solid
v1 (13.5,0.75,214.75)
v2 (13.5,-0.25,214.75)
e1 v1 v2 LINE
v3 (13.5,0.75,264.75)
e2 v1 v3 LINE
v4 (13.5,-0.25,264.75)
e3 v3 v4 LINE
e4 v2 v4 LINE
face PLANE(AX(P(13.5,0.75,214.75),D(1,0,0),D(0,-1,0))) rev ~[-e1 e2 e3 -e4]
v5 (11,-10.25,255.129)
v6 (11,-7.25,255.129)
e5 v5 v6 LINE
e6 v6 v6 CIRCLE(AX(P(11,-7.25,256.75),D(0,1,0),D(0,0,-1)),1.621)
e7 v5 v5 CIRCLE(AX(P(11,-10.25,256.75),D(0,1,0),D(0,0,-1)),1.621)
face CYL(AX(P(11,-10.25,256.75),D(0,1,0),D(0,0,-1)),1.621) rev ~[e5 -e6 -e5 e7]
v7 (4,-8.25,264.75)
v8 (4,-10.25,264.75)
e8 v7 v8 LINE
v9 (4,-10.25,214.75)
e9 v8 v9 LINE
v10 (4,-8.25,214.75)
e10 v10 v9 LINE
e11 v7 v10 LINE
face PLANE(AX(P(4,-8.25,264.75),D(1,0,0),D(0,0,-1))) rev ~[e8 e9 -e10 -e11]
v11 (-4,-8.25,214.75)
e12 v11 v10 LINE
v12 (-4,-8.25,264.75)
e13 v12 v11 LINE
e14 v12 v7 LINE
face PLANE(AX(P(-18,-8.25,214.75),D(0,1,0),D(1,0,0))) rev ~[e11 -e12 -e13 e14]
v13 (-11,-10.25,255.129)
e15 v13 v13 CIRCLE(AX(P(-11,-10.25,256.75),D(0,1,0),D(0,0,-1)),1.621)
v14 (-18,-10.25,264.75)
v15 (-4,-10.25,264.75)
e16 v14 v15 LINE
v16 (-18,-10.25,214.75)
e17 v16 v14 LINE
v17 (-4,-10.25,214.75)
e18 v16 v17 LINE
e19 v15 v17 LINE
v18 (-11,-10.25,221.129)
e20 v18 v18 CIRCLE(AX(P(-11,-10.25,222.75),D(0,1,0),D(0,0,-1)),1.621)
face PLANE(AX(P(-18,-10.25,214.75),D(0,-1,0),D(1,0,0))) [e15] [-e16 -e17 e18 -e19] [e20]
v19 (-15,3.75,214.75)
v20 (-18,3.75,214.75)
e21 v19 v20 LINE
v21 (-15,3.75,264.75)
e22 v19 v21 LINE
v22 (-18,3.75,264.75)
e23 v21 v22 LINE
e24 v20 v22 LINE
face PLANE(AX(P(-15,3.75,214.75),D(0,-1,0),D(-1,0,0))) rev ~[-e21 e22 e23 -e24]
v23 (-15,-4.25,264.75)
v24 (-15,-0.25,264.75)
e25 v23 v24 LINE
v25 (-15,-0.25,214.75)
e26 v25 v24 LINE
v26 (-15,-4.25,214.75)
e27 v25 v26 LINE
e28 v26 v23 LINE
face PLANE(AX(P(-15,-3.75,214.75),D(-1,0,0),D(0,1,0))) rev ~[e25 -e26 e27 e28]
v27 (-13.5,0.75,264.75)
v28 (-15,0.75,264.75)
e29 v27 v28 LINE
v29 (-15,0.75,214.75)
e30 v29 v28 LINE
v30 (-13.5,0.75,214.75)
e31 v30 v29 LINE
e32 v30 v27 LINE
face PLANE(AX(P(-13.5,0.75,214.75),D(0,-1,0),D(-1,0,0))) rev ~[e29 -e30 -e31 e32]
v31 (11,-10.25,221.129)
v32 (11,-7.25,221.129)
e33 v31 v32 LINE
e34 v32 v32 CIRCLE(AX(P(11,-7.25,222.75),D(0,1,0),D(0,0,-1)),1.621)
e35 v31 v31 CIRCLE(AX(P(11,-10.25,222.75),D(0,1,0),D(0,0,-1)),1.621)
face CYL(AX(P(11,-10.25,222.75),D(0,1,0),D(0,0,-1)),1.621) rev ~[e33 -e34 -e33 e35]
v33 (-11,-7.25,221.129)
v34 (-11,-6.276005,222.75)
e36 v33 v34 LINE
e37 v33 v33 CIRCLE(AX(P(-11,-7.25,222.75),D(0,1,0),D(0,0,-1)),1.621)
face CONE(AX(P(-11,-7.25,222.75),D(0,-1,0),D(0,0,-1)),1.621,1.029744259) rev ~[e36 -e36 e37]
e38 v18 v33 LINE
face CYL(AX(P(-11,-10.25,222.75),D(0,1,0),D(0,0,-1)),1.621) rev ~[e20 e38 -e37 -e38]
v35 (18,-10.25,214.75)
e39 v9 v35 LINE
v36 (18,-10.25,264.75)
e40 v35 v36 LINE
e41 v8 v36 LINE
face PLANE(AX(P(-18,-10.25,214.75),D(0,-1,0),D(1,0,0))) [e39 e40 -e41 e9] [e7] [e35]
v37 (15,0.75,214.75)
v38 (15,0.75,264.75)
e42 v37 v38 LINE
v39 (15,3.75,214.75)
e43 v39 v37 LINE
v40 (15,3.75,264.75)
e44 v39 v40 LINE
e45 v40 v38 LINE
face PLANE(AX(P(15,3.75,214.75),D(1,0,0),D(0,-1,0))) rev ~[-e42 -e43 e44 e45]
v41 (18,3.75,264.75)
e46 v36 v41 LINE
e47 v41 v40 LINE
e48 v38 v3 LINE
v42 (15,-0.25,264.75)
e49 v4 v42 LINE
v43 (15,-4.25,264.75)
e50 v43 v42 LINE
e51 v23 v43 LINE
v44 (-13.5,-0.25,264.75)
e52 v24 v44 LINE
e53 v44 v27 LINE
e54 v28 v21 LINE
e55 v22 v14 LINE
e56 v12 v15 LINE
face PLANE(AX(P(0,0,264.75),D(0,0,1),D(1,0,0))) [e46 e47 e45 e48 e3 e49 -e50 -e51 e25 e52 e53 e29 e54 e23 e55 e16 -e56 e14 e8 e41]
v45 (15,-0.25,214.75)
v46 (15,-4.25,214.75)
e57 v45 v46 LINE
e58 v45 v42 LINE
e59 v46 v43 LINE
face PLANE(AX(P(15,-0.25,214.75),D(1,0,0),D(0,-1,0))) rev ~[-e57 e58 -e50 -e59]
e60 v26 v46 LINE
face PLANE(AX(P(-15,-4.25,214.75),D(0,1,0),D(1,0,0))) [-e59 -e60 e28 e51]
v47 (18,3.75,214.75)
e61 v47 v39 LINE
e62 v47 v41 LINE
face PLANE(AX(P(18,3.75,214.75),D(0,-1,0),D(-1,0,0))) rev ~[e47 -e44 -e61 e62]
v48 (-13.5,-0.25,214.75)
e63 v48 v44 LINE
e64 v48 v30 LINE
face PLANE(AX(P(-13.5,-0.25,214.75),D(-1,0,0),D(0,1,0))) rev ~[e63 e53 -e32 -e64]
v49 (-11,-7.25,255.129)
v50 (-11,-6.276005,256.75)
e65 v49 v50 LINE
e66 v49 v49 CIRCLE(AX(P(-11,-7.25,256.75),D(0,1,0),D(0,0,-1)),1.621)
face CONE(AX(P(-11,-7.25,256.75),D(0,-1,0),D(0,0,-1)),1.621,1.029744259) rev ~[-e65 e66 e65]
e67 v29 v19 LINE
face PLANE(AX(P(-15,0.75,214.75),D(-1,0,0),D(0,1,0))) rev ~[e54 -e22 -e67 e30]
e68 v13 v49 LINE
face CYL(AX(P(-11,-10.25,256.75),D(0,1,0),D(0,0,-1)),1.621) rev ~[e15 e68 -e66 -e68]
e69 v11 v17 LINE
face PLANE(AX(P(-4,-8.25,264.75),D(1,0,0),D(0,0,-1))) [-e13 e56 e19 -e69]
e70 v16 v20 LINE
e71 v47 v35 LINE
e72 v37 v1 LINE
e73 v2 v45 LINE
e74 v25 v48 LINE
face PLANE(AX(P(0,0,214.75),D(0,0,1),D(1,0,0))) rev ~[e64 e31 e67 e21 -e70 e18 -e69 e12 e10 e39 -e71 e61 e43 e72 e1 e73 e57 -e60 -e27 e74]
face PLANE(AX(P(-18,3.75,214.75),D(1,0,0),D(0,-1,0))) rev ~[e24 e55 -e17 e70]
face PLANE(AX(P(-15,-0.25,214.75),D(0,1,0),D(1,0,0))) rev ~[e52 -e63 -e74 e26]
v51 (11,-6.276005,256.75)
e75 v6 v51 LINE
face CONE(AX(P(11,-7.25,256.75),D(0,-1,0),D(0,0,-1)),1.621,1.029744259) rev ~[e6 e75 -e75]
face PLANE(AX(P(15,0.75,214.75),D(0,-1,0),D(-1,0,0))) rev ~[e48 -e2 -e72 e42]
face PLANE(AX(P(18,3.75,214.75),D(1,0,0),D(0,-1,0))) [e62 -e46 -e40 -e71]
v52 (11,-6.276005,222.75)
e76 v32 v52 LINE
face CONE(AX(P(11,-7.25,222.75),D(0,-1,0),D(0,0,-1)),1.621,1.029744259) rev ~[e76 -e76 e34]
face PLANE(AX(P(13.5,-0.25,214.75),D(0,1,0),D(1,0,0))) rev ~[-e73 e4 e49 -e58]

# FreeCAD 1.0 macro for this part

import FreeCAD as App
import Part
import Sketcher

doc = App.newDocument("Part")
body = doc.addObject("PartDesign::Body", "Body")

sketch1 = doc.addObject("Sketcher::SketchObject", "Sketch")
body.addObject(sketch1)
sketch1.AttachmentSupport = (doc.XY_Plane, [""])
sketch1.MapMode = "FlatFace"
sketch1.AttachmentOffset = App.Placement(App.Vector(0, 0, 214.75), App.Rotation())
sketch1.addGeometry(Part.LineSegment(App.Vector(13.5, -0.25, 0), App.Vector(15, -0.25, 0)), False)
sketch1.addGeometry(Part.LineSegment(App.Vector(15, -0.25, 0), App.Vector(15, -4.25, 0)), False)
sketch1.addGeometry(Part.LineSegment(App.Vector(15, -4.25, 0), App.Vector(-15, -4.25, 0)), False)
sketch1.addGeometry(Part.LineSegment(App.Vector(-15, -4.25, 0), App.Vector(-15, -0.25, 0)), False)
sketch1.addGeometry(Part.LineSegment(App.Vector(-15, -0.25, 0), App.Vector(-13.5, -0.25, 0)), False)
sketch1.addGeometry(Part.LineSegment(App.Vector(-13.5, -0.25, 0), App.Vector(-13.5, 0.75, 0)), False)
sketch1.addGeometry(Part.LineSegment(App.Vector(-13.5, 0.75, 0), App.Vector(-15, 0.75, 0)), False)
sketch1.addGeometry(Part.LineSegment(App.Vector(-15, 0.75, 0), App.Vector(-15, 3.75, 0)), False)
sketch1.addGeometry(Part.LineSegment(App.Vector(-15, 3.75, 0), App.Vector(-18, 3.75, 0)), False)
sketch1.addGeometry(Part.LineSegment(App.Vector(-18, 3.75, 0), App.Vector(-18, -8.25, 0)), False)
sketch1.addGeometry(Part.LineSegment(App.Vector(-18, -8.25, 0), App.Vector(18, -8.25, 0)), False)
sketch1.addGeometry(Part.LineSegment(App.Vector(18, -8.25, 0), App.Vector(18, 3.75, 0)), False)
sketch1.addGeometry(Part.LineSegment(App.Vector(18, 3.75, 0), App.Vector(15, 3.75, 0)), False)
sketch1.addGeometry(Part.LineSegment(App.Vector(15, 3.75, 0), App.Vector(15, 0.75, 0)), False)
sketch1.addGeometry(Part.LineSegment(App.Vector(15, 0.75, 0), App.Vector(13.5, 0.75, 0)), False)
sketch1.addGeometry(Part.LineSegment(App.Vector(13.5, 0.75, 0), App.Vector(13.5, -0.25, 0)), False)
sketch1.addConstraint(Sketcher.Constraint("Coincident", 0, 2, 1, 1))
sketch1.addConstraint(Sketcher.Constraint("Coincident", 1, 2, 2, 1))
sketch1.addConstraint(Sketcher.Constraint("Coincident", 2, 2, 3, 1))
sketch1.addConstraint(Sketcher.Constraint("Coincident", 3, 2, 4, 1))
sketch1.addConstraint(Sketcher.Constraint("Coincident", 4, 2, 5, 1))
sketch1.addConstraint(Sketcher.Constraint("Coincident", 5, 2, 6, 1))
sketch1.addConstraint(Sketcher.Constraint("Coincident", 6, 2, 7, 1))
sketch1.addConstraint(Sketcher.Constraint("Coincident", 7, 2, 8, 1))
sketch1.addConstraint(Sketcher.Constraint("Coincident", 8, 2, 9, 1))
sketch1.addConstraint(Sketcher.Constraint("Coincident", 9, 2, 10, 1))
sketch1.addConstraint(Sketcher.Constraint("Coincident", 10, 2, 11, 1))
sketch1.addConstraint(Sketcher.Constraint("Coincident", 11, 2, 12, 1))
sketch1.addConstraint(Sketcher.Constraint("Coincident", 12, 2, 13, 1))
sketch1.addConstraint(Sketcher.Constraint("Coincident", 13, 2, 14, 1))
sketch1.addConstraint(Sketcher.Constraint("Coincident", 14, 2, 15, 1))
sketch1.addConstraint(Sketcher.Constraint("Coincident", 15, 2, 0, 1))
sketch1.addConstraint(Sketcher.Constraint("Horizontal", 0))
sketch1.addConstraint(Sketcher.Constraint("Vertical", 1))
sketch1.addConstraint(Sketcher.Constraint("Horizontal", 2))
sketch1.addConstraint(Sketcher.Constraint("Vertical", 3))
sketch1.addConstraint(Sketcher.Constraint("Horizontal", 4))
sketch1.addConstraint(Sketcher.Constraint("Vertical", 5))
sketch1.addConstraint(Sketcher.Constraint("Horizontal", 6))
sketch1.addConstraint(Sketcher.Constraint("Vertical", 7))
sketch1.addConstraint(Sketcher.Constraint("Horizontal", 8))
sketch1.addConstraint(Sketcher.Constraint("Vertical", 9))
sketch1.addConstraint(Sketcher.Constraint("Horizontal", 10))
sketch1.addConstraint(Sketcher.Constraint("Vertical", 11))
sketch1.addConstraint(Sketcher.Constraint("Horizontal", 12))
sketch1.addConstraint(Sketcher.Constraint("Vertical", 13))
sketch1.addConstraint(Sketcher.Constraint("Horizontal", 14))
sketch1.addConstraint(Sketcher.Constraint("Vertical", 15))
sketch1.addConstraint(Sketcher.Constraint("Symmetric", 0, 2, 3, 2, -2))
sketch1.addConstraint(Sketcher.Constraint("Symmetric", 8, 2, 11, 2, -2))
sketch1.addConstraint(Sketcher.Constraint("Symmetric", 6, 2, 13, 2, -2))
sketch1.addConstraint(Sketcher.Constraint("Vertical", 3, 2, 6, 2))
sketch1.addConstraint(Sketcher.Constraint("Equal", 0, 4))
sketch1.addConstraint(Sketcher.Constraint("Equal", 12, 7))
sketch1.addConstraint(Sketcher.Constraint("DistanceX", 8, 2, 8, 1, 3.0))
sketch1.addConstraint(Sketcher.Constraint("DistanceY", 9, 2, 9, 1, 12.0))
sketch1.addConstraint(Sketcher.Constraint("DistanceX", 2, 2, 2, 1, 30.0))
sketch1.addConstraint(Sketcher.Constraint("DistanceY", 1, 2, 1, 1, 4.0))
sketch1.addConstraint(Sketcher.Constraint("DistanceY", 5, 1, 5, 2, 1.0))
sketch1.addConstraint(Sketcher.Constraint("DistanceX", 0, 1, 0, 2, 1.5))
sketch1.addConstraint(Sketcher.Constraint("DistanceY", 0, 2, -1, 1, 0.25))
pad1 = doc.addObject("PartDesign::Pad", "Pad")
body.addObject(pad1)
pad1.Profile = sketch1
pad1.Length = 50

sketch2 = doc.addObject("Sketcher::SketchObject", "Sketch001")
body.addObject(sketch2)
sketch2.AttachmentSupport = (doc.XZ_Plane, [""])
sketch2.MapMode = "FlatFace"
sketch2.AttachmentOffset = App.Placement(App.Vector(0, 0, 8.25), App.Rotation())
sketch2.addGeometry(Part.LineSegment(App.Vector(-18, 264.75, 0), App.Vector(-18, 214.75, 0)), False)
sketch2.addGeometry(Part.LineSegment(App.Vector(-18, 214.75, 0), App.Vector(-4, 214.75, 0)), False)
sketch2.addGeometry(Part.LineSegment(App.Vector(-4, 214.75, 0), App.Vector(-4, 264.75, 0)), False)
sketch2.addGeometry(Part.LineSegment(App.Vector(-4, 264.75, 0), App.Vector(-18, 264.75, 0)), False)
sketch2.addGeometry(Part.LineSegment(App.Vector(4, 264.75, 0), App.Vector(4, 214.75, 0)), False)
sketch2.addGeometry(Part.LineSegment(App.Vector(4, 214.75, 0), App.Vector(18, 214.75, 0)), False)
sketch2.addGeometry(Part.LineSegment(App.Vector(18, 214.75, 0), App.Vector(18, 264.75, 0)), False)
sketch2.addGeometry(Part.LineSegment(App.Vector(18, 264.75, 0), App.Vector(4, 264.75, 0)), False)
sketch2.addConstraint(Sketcher.Constraint("Coincident", 0, 2, 1, 1))
sketch2.addConstraint(Sketcher.Constraint("Coincident", 1, 2, 2, 1))
sketch2.addConstraint(Sketcher.Constraint("Coincident", 2, 2, 3, 1))
sketch2.addConstraint(Sketcher.Constraint("Coincident", 3, 2, 0, 1))
sketch2.addConstraint(Sketcher.Constraint("Coincident", 4, 2, 5, 1))
sketch2.addConstraint(Sketcher.Constraint("Coincident", 5, 2, 6, 1))
sketch2.addConstraint(Sketcher.Constraint("Coincident", 6, 2, 7, 1))
sketch2.addConstraint(Sketcher.Constraint("Coincident", 7, 2, 4, 1))
sketch2.addConstraint(Sketcher.Constraint("Vertical", 0))
sketch2.addConstraint(Sketcher.Constraint("Horizontal", 1))
sketch2.addConstraint(Sketcher.Constraint("Vertical", 2))
sketch2.addConstraint(Sketcher.Constraint("Horizontal", 3))
sketch2.addConstraint(Sketcher.Constraint("Vertical", 4))
sketch2.addConstraint(Sketcher.Constraint("Horizontal", 5))
sketch2.addConstraint(Sketcher.Constraint("Vertical", 6))
sketch2.addConstraint(Sketcher.Constraint("Horizontal", 7))
sketch2.addConstraint(Sketcher.Constraint("Symmetric", 1, 2, 4, 2, -2))
sketch2.addConstraint(Sketcher.Constraint("Symmetric", 3, 2, 6, 2, -2))
sketch2.addConstraint(Sketcher.Constraint("DistanceX", 1, 1, 1, 2, 14.0))
sketch2.addConstraint(Sketcher.Constraint("DistanceY", 0, 2, 0, 1, 50.0))
sketch2.addConstraint(Sketcher.Constraint("DistanceX", 0, 2, -1, 1, 18.0))
sketch2.addConstraint(Sketcher.Constraint("DistanceY", -1, 1, 0, 2, 214.75))
pad2 = doc.addObject("PartDesign::Pad", "Pad001")
body.addObject(pad2)
pad2.Profile = sketch2
pad2.Length = 2

sketch3 = doc.addObject("Sketcher::SketchObject", "Sketch002")
body.addObject(sketch3)
sketch3.AttachmentSupport = (doc.XZ_Plane, [""])
sketch3.MapMode = "FlatFace"
sketch3.AttachmentOffset = App.Placement(App.Vector(0, 0, 10.25), App.Rotation())
sketch3.addGeometry(Part.Circle(App.Vector(-11, 256.75, 0), App.Vector(0, 0, 1), 1.621), False)
sketch3.addGeometry(Part.Circle(App.Vector(-11, 222.75, 0), App.Vector(0, 0, 1), 1.621), False)
sketch3.addGeometry(Part.Circle(App.Vector(11, 256.75, 0), App.Vector(0, 0, 1), 1.621), False)
sketch3.addGeometry(Part.Circle(App.Vector(11, 222.75, 0), App.Vector(0, 0, 1), 1.621), False)
sketch3.addConstraint(Sketcher.Constraint("Equal", 0, 1))
sketch3.addConstraint(Sketcher.Constraint("Equal", 1, 2))
sketch3.addConstraint(Sketcher.Constraint("Equal", 2, 3))
sketch3.addConstraint(Sketcher.Constraint("Symmetric", 0, 3, 2, 3, -2))
sketch3.addConstraint(Sketcher.Constraint("Symmetric", 1, 3, 3, 3, -2))
sketch3.addConstraint(Sketcher.Constraint("Vertical", 0, 3, 1, 3))
sketch3.addConstraint(Sketcher.Constraint("Diameter", 0, 3.242))
sketch3.addConstraint(Sketcher.Constraint("DistanceX", 0, 3, -1, 1, 11.0))
sketch3.addConstraint(Sketcher.Constraint("DistanceY", 1, 3, 0, 3, 34.0))
sketch3.addConstraint(Sketcher.Constraint("DistanceY", -1, 1, 0, 3, 256.75))
doc.recompute()
hole = doc.addObject("PartDesign::Hole", "Hole")
body.addObject(hole)
hole.Profile = sketch3
hole.ThreadType = "None"
hole.Diameter = 3.242
hole.DepthType = "Dimension"
hole.Depth = 3
hole.DrillPoint = "Angled"
hole.DrillPointAngle = 118

doc.recompute()
